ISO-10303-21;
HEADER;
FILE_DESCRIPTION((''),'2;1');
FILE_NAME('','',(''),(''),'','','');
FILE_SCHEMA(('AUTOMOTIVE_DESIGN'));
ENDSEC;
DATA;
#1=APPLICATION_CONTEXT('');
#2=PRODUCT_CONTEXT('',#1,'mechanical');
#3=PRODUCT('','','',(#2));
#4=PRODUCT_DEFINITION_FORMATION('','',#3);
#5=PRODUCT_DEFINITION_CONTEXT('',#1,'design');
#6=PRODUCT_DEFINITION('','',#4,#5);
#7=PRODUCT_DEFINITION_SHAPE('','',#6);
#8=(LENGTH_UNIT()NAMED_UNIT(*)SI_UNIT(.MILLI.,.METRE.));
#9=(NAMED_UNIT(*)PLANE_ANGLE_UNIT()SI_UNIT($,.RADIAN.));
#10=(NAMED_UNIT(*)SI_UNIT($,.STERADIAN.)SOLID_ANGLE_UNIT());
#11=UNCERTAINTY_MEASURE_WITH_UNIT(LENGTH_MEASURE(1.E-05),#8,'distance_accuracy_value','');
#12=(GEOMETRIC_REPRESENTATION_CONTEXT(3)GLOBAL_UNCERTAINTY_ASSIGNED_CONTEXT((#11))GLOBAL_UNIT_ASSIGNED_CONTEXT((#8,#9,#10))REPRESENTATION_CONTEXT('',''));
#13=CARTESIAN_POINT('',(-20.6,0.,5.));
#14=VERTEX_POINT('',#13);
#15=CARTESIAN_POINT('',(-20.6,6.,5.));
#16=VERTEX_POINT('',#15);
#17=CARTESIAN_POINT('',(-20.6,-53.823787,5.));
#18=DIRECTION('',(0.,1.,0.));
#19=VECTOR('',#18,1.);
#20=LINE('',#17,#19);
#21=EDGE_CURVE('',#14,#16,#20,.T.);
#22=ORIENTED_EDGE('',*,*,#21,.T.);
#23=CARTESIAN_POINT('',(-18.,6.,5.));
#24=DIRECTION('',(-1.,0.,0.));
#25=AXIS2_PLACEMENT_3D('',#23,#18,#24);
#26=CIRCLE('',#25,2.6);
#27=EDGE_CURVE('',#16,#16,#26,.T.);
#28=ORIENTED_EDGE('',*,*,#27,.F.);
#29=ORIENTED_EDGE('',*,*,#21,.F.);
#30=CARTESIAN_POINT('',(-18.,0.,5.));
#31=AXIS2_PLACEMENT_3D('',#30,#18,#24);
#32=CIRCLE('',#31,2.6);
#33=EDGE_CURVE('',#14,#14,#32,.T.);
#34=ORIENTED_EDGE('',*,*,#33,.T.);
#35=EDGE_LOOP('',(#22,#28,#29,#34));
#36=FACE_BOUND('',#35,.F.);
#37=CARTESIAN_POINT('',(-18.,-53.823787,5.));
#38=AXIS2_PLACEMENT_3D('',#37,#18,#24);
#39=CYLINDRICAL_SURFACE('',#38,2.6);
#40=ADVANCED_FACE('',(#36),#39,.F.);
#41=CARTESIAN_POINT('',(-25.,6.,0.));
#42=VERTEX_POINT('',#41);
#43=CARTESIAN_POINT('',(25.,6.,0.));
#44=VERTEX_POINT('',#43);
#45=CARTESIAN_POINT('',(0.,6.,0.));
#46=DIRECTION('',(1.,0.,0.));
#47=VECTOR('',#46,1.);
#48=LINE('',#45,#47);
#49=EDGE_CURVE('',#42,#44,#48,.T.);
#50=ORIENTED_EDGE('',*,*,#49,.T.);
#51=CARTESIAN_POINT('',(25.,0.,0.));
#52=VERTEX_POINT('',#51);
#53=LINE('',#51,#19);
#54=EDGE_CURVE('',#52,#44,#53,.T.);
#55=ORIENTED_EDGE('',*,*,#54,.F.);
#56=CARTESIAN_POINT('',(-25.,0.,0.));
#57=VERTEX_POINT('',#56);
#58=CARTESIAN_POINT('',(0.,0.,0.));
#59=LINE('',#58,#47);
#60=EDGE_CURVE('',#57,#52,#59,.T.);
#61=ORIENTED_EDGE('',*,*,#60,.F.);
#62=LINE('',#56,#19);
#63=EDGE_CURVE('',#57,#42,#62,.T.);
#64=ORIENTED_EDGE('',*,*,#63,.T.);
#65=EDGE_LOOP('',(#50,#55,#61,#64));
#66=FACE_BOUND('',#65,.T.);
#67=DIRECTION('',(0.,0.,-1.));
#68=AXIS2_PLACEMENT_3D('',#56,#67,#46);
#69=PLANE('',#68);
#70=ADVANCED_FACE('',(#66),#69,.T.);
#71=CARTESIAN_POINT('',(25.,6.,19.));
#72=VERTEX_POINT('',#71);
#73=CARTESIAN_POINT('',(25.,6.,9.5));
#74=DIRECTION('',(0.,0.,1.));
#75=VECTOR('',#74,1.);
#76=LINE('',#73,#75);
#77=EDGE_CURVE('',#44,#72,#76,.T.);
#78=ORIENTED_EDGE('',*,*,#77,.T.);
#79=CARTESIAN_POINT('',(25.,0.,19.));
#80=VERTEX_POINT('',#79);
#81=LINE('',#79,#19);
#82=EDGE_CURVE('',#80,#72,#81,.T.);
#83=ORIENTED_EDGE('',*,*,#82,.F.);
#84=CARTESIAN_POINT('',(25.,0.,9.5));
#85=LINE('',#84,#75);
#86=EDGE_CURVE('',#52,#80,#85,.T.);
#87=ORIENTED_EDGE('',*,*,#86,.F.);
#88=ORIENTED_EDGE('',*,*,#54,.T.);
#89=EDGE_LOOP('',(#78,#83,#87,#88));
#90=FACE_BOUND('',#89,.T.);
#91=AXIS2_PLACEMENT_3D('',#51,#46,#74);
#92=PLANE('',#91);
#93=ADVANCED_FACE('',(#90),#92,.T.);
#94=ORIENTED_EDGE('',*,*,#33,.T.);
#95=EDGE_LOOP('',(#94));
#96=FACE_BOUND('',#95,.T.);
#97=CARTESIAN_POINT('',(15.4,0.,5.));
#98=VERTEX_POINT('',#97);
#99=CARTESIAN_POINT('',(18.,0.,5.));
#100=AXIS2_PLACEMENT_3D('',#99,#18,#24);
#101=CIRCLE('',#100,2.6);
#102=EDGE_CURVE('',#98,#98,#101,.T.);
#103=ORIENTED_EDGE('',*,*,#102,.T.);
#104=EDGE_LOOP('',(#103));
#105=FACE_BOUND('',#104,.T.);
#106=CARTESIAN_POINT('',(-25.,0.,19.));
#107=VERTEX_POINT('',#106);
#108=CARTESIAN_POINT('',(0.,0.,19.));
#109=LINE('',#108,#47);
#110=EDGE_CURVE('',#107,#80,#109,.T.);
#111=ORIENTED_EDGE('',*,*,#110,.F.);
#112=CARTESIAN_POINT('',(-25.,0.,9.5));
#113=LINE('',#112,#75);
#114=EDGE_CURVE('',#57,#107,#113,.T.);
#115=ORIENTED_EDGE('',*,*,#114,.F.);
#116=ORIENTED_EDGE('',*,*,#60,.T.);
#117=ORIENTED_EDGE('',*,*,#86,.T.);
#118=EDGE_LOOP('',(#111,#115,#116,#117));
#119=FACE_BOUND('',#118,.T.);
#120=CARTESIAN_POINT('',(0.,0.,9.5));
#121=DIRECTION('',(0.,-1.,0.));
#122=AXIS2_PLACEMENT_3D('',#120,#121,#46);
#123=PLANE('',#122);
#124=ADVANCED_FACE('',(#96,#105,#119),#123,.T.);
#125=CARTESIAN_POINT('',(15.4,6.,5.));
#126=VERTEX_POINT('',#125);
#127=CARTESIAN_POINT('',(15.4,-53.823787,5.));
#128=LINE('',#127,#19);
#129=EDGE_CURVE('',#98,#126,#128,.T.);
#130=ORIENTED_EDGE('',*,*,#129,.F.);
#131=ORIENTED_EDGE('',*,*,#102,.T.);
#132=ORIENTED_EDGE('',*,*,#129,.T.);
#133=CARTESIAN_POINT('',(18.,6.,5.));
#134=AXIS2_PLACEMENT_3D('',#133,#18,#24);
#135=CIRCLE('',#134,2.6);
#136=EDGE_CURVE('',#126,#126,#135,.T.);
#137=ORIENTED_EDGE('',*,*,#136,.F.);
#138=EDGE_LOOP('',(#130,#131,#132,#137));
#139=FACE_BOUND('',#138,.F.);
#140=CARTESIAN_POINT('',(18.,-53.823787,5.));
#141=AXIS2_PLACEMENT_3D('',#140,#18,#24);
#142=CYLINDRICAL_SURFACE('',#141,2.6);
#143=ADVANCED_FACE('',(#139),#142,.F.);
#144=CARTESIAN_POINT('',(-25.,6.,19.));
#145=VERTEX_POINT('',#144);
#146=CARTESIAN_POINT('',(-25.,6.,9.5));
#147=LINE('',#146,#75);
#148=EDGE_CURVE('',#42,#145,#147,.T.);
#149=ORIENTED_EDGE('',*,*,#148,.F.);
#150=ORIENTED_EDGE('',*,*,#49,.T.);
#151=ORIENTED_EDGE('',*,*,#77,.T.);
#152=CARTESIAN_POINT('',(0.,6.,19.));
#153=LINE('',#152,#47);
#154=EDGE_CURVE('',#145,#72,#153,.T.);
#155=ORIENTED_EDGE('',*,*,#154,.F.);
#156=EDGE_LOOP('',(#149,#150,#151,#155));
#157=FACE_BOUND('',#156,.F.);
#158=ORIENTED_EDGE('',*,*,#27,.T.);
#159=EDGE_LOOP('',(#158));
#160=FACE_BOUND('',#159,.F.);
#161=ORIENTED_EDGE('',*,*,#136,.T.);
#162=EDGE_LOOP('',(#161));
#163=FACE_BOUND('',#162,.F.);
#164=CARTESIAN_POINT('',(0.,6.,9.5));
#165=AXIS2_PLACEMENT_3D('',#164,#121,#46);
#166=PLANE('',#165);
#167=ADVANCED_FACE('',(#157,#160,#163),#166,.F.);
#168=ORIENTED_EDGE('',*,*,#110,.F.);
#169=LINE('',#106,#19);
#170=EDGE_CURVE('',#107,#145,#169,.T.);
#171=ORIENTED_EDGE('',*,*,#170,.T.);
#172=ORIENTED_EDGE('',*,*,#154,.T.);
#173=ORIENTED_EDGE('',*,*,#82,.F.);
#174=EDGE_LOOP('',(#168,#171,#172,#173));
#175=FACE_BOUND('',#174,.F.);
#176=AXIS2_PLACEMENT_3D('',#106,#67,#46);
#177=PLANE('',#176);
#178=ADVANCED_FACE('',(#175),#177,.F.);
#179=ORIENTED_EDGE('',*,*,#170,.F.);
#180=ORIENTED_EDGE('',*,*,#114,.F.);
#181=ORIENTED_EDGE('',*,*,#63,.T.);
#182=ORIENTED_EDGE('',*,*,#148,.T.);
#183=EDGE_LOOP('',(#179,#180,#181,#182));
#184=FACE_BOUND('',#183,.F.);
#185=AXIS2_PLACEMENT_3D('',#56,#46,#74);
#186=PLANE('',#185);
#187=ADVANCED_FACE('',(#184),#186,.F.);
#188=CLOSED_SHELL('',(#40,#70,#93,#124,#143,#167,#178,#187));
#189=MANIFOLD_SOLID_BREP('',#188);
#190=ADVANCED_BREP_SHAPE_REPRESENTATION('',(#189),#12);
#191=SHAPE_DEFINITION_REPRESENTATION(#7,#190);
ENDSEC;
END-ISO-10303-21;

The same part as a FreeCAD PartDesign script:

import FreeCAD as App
import Part
import Sketcher

V = App.Vector

doc = App.newDocument("Part")
params = doc.addObject("Spreadsheet::Sheet", "Params")
for row, (alias, value) in enumerate([
    ("sketch1_width", "50 mm"),
    ("sketch1_height", "19 mm"),
    ("pad1_length", "6 mm"),
    ("sketch2_diameter", "5.2 mm"),
    ("hole_diameter", "5.2 mm"),
], start=1):
    params.set(f"A{row}", alias)
    params.set(f"B{row}", "=" + value)
    params.setAlias(f"B{row}", alias)

body = doc.addObject("PartDesign::Body", "Body")

# Sketch on XZ plane
sketch1 = body.newObject("Sketcher::SketchObject", "Sketch")
sketch1.AttachmentSupport = (doc.getObject("XZ_Plane"), [""])
sketch1.MapMode = "FlatFace"
sketch1.addGeometry(Part.LineSegment(V(-25, 19, 0), V(-25, 0, 0)), False)
sketch1.addGeometry(Part.LineSegment(V(-25, 0, 0), V(25, 0, 0)), False)
sketch1.addGeometry(Part.LineSegment(V(25, 0, 0), V(25, 19, 0)), False)
sketch1.addGeometry(Part.LineSegment(V(25, 19, 0), V(-25, 19, 0)), False)
sketch1.addConstraint(Sketcher.Constraint("Coincident", 0, 2, 1, 1))
sketch1.addConstraint(Sketcher.Constraint("Coincident", 1, 2, 2, 1))
sketch1.addConstraint(Sketcher.Constraint("Coincident", 2, 2, 3, 1))
sketch1.addConstraint(Sketcher.Constraint("Coincident", 3, 2, 0, 1))
sketch1.addConstraint(Sketcher.Constraint("Vertical", 0))
sketch1.addConstraint(Sketcher.Constraint("Horizontal", 1))
sketch1.addConstraint(Sketcher.Constraint("Vertical", 2))
sketch1.addConstraint(Sketcher.Constraint("Horizontal", 3))
sketch1.addConstraint(Sketcher.Constraint("Symmetric", 0, 2, 1, 2, -1, 1))
sketch1.addConstraint(Sketcher.Constraint("DistanceX", 1, 1, 1, 2, 50.0))
sketch1.addConstraint(Sketcher.Constraint("DistanceY", 0, 2, 0, 1, 19.0))
sketch1.setExpression("Constraints[9]", "Params.sketch1_width")
sketch1.setExpression("Constraints[10]", "Params.sketch1_height")
pad1 = body.newObject("PartDesign::Pad", "Pad")
pad1.Profile = sketch1
pad1.setExpression("Length", "Params.pad1_length")
pad1.Reversed = True

# Sketch on XZ plane
sketch2 = body.newObject("Sketcher::SketchObject", "Sketch001")
sketch2.AttachmentSupport = (doc.getObject("XZ_Plane"), [""])
sketch2.MapMode = "FlatFace"
sketch2.addGeometry(Part.Circle(V(-18, 5, 0), V(0, 0, 1), 2.6), False)
sketch2.addGeometry(Part.Circle(V(18, 5, 0), V(0, 0, 1), 2.6), False)
sketch2.addConstraint(Sketcher.Constraint("Equal", 0, 1))
sketch2.addConstraint(Sketcher.Constraint("Symmetric", 0, 3, 1, 3, -2))
sketch2.addConstraint(Sketcher.Constraint("Diameter", 0, 5.2))
sketch2.addConstraint(Sketcher.Constraint("DistanceX", 0, 3, -1, 1, 18.0))
sketch2.addConstraint(Sketcher.Constraint("DistanceY", -1, 1, 0, 3, 5.0))
sketch2.setExpression("Constraints[2]", "Params.sketch2_diameter")
doc.recompute()
hole = body.newObject("PartDesign::Hole", "Hole")
hole.Profile = sketch2
hole.ThreadType = "None"
hole.setExpression("Diameter", "Params.hole_diameter")
hole.DepthType = "ThroughAll"

doc.recompute()
